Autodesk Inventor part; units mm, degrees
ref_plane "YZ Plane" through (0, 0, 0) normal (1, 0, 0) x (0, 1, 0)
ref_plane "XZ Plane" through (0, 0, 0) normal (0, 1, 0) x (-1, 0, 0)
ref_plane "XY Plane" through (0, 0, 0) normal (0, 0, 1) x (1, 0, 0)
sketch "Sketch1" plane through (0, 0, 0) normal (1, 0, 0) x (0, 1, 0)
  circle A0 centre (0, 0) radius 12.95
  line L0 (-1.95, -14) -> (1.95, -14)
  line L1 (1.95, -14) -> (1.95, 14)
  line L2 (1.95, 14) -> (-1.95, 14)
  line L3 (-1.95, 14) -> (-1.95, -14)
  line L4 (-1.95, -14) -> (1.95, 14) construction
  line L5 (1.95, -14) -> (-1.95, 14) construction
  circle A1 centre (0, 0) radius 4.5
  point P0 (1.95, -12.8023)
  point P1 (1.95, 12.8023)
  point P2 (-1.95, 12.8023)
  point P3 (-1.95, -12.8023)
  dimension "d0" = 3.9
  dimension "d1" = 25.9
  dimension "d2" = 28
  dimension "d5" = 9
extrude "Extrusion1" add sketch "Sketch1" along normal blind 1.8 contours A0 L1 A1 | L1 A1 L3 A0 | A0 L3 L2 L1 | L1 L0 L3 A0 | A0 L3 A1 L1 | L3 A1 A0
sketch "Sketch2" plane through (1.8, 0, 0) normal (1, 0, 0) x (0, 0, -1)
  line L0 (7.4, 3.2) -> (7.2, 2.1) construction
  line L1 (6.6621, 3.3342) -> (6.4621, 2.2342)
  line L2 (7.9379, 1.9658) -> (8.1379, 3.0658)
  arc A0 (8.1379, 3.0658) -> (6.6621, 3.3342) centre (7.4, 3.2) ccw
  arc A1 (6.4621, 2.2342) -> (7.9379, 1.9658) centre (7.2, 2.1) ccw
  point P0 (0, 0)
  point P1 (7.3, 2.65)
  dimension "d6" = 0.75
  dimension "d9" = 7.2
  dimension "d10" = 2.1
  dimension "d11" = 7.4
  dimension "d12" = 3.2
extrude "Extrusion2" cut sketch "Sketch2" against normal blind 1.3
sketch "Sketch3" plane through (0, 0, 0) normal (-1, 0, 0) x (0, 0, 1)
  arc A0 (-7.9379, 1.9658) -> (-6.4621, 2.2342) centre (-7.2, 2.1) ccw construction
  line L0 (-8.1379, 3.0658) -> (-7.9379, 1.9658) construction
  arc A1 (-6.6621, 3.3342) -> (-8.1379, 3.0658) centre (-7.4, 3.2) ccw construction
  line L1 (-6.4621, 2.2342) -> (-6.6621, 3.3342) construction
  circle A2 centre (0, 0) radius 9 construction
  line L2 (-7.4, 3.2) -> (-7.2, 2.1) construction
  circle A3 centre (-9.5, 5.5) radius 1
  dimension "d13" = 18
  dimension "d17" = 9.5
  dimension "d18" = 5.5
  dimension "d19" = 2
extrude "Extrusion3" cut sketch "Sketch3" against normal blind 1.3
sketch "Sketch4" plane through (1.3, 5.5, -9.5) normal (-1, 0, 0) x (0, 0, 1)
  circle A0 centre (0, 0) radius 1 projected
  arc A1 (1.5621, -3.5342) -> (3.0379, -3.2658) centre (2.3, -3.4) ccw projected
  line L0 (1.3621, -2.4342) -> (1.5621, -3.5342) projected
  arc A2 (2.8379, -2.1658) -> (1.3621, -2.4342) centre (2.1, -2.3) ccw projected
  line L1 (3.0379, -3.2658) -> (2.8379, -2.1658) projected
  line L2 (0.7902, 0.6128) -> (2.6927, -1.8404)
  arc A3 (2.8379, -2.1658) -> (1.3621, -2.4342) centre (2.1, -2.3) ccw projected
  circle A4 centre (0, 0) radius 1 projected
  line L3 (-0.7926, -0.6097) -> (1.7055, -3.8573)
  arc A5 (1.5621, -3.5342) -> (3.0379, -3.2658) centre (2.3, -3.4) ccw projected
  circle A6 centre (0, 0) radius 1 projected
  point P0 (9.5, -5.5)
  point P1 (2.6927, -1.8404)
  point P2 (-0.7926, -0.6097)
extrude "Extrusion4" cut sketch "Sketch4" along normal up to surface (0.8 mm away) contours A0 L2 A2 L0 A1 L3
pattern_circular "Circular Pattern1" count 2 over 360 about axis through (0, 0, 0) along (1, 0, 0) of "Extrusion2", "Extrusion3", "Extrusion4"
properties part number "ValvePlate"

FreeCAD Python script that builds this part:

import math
import FreeCAD as App
import Part
import Sketcher
from FreeCAD import Vector
Q = App.Units.Quantity

doc = App.newDocument("Part")
params = doc.addObject("Spreadsheet::Sheet", "Params")
for row, (alias, value) in enumerate([
    ("sketch1_diameter", "9 mm"),
    ("sketch1_radius", "12.95 mm"),
    ("sketch1_width", "3.9 mm"),
    ("pad1_length", "1.8 mm"),
    ("sketch2_radius", "0.75 mm"),
    ("pocket1_length", "1.3 mm"),
    ("sketch3_diameter", "2 mm"),
    ("pocket2_length", "1.3 mm"),
    ("sketch4_radius", "1 mm"),
    ("sketch4_radius2", "0.75 mm"),
    ("pocket3_length", "0.8 mm"),
], start=1):
    params.set(f"A{row}", alias)
    params.set(f"B{row}", "=" + value)
    params.setAlias(f"B{row}", alias)

body = doc.addObject("PartDesign::Body", "Body")

# Sketch on YZ plane
sketch1 = body.newObject("Sketcher::SketchObject", "Sketch")
sketch1.AttachmentSupport = (doc.getObject("YZ_Plane"), [""])
sketch1.MapMode = "FlatFace"
sketch1.addGeometry([
    Part.ArcOfCircle(Part.Circle(Vector(0, 0, 0), Vector(0, 0, 1), 12.95), math.radians(-81.339509), math.radians(81.339509)),  # 0
    Part.LineSegment(Vector(1.95, 12.802344, 0), Vector(1.95, 14, 0)),  # 1
    Part.LineSegment(Vector(1.95, 14, 0), Vector(-1.95, 14, 0)),  # 2
    Part.LineSegment(Vector(-1.95, 14, 0), Vector(-1.95, 12.802344, 0)),  # 3
    Part.ArcOfCircle(Part.Circle(Vector(0, 0, 0), Vector(0, 0, 1), 12.95), math.radians(98.660491), math.radians(261.339509)),  # 4
    Part.LineSegment(Vector(-1.95, -12.802344, 0), Vector(-1.95, -14, 0)),  # 5
    Part.LineSegment(Vector(-1.95, -14, 0), Vector(1.95, -14, 0)),  # 6
    Part.LineSegment(Vector(1.95, -14, 0), Vector(1.95, -12.802344, 0)),  # 7
    Part.Circle(Vector(0, 0, 0), Vector(0, 0, 1), 4.5),  # 8
], False)
sketch1.addConstraint([
    Sketcher.Constraint("Coincident", 0, 2, 1, 1),
    Sketcher.Constraint("Coincident", 1, 2, 2, 1),
    Sketcher.Constraint("Coincident", 2, 2, 3, 1),
    Sketcher.Constraint("Coincident", 3, 2, 4, 1),
    Sketcher.Constraint("Coincident", 4, 2, 5, 1),
    Sketcher.Constraint("Coincident", 5, 2, 6, 1),
    Sketcher.Constraint("Coincident", 6, 2, 7, 1),
    Sketcher.Constraint("Coincident", 7, 2, 0, 1),
    Sketcher.Constraint("Vertical", 1),
    Sketcher.Constraint("Horizontal", 2),
    Sketcher.Constraint("Vertical", 3),
    Sketcher.Constraint("Vertical", 5),
    Sketcher.Constraint("Horizontal", 6),
    Sketcher.Constraint("Vertical", 7),
    Sketcher.Constraint("Coincident", 0, 3, -1, 1),
    Sketcher.Constraint("Coincident", 4, 3, -1, 1),
    Sketcher.Constraint("Coincident", 8, 3, -1, 1),
    Sketcher.Constraint("Equal", 0, 4),
    Sketcher.Constraint("Symmetric", 1, 2, 5, 2, -1, 1),
    Sketcher.Constraint("Horizontal", 0, 2, 3, 2),
    Sketcher.Constraint("Horizontal", 4, 2, 7, 2),
    Sketcher.Constraint("Diameter", 8, Q("9 mm")),
    Sketcher.Constraint("Radius", 0, Q("12.95 mm")),
    Sketcher.Constraint("DistanceX", 2, 2, 2, 1, Q("3.9 mm")),
    Sketcher.Constraint("DistanceY", -1, 1, 1, 2, Q("14 mm")),
])
sketch1.setExpression("Constraints[21]", "Params.sketch1_diameter")
sketch1.setExpression("Constraints[22]", "Params.sketch1_radius")
sketch1.setExpression("Constraints[23]", "Params.sketch1_width")
pad1 = body.newObject("PartDesign::Pad", "Pad")
pad1.Profile = sketch1
pad1.setExpression("Length", "Params.pad1_length")

# Sketch on YZ plane
sketch2 = body.newObject("Sketcher::SketchObject", "Sketch001")
sketch2.AttachmentSupport = (doc.getObject("YZ_Plane"), [""])
sketch2.MapMode = "FlatFace"
sketch2.AttachmentOffset = App.Placement(Vector(0, 0, 1.8), App.Rotation())
sketch2.addGeometry([
    Part.ArcOfCircle(Part.Circle(Vector(3.2, -7.4, 0), Vector(0, 0, 1), 0.750004), math.radians(-100.30758), math.radians(79.69242)),
    Part.LineSegment(Vector(3.3342, -6.6621, 0), Vector(2.2342, -6.4621, 0)),
    Part.ArcOfCircle(Part.Circle(Vector(2.1, -7.2, 0), Vector(0, 0, 1), 0.750004), math.radians(79.69242), math.radians(259.69242)),
    Part.LineSegment(Vector(1.9658, -7.9379, 0), Vector(3.0658, -8.1379, 0)),
], False)
sketch2.addConstraint([
    Sketcher.Constraint("Tangent", 0, 2, 1, 1),
    Sketcher.Constraint("Tangent", 1, 2, 2, 1),
    Sketcher.Constraint("Tangent", 2, 2, 3, 1),
    Sketcher.Constraint("Tangent", 3, 2, 0, 1),
    Sketcher.Constraint("Equal", 0, 2),
    Sketcher.Constraint("Radius", 0, Q("0.75 mm")),
    Sketcher.Constraint("DistanceX", -1, 1, 0, 3, Q("3.2 mm")),
    Sketcher.Constraint("DistanceY", 0, 3, -1, 1, Q("7.4 mm")),
    Sketcher.Constraint("DistanceX", -1, 1, 2, 3, Q("2.1 mm")),
    Sketcher.Constraint("DistanceY", 2, 3, -1, 1, Q("7.2 mm")),
])
sketch2.setExpression("Constraints[5]", "Params.sketch2_radius")
pocket1 = body.newObject("PartDesign::Pocket", "Pocket")
pocket1.Profile = sketch2
pocket1.setExpression("Length", "Params.pocket1_length")

# Sketch on YZ plane
sketch3 = body.newObject("Sketcher::SketchObject", "Sketch002")
sketch3.AttachmentSupport = (doc.getObject("YZ_Plane"), [""])
sketch3.MapMode = "FlatFace"
sketch3.addGeometry(Part.Circle(Vector(5.5, -9.5, 0), Vector(0, 0, 1), 1), False)
sketch3.addConstraint([
    Sketcher.Constraint("Diameter", 0, Q("2 mm")),
    Sketcher.Constraint("DistanceX", -1, 1, 0, 3, Q("5.5 mm")),
    Sketcher.Constraint("DistanceY", 0, 3, -1, 1, Q("9.5 mm")),
])
sketch3.setExpression("Constraints[0]", "Params.sketch3_diameter")
pocket2 = body.newObject("PartDesign::Pocket", "Pocket001")
pocket2.Profile = sketch3
pocket2.setExpression("Length", "Params.pocket2_length")
pocket2.Reversed = True

# Sketch on YZ plane
sketch4 = body.newObject("Sketcher::SketchObject", "Sketch003")
sketch4.AttachmentSupport = (doc.getObject("YZ_Plane"), [""])
sketch4.MapMode = "FlatFace"
sketch4.AttachmentOffset = App.Placement(Vector(0, 0, 1.3), App.Rotation())
sketch4.addGeometry([
    Part.ArcOfCircle(Part.Circle(Vector(5.5, -9.5, 0), Vector(0, 0, 1), 1), math.radians(52.206427), math.radians(232.431059)),  # 0
    Part.LineSegment(Vector(4.8903, -10.2926, 0), Vector(1.6427, -7.7945, 0)),  # 1
    Part.ArcOfCircle(Part.Circle(Vector(2.1, -7.2, 0), Vector(0, 0, 1), 0.750004), math.radians(-127.568126), math.radians(-100.30758)),  # 2
    Part.LineSegment(Vector(1.9658, -7.9379, 0), Vector(3.0658, -8.1379, 0)),  # 3
    Part.ArcOfCircle(Part.Circle(Vector(3.2, -7.4, 0), Vector(0, 0, 1), 0.750004), math.radians(-100.30758), math.radians(52.208767)),  # 4
    Part.LineSegment(Vector(3.6596, -6.8073, 0), Vector(6.1128, -8.7098, 0)),  # 5
], False)
sketch4.addConstraint([
    Sketcher.Constraint("Tangent", 0, 2, 1, 1),
    Sketcher.Constraint("Tangent", 1, 2, 2, 1),
    Sketcher.Constraint("Tangent", 2, 2, 3, 1),
    Sketcher.Constraint("Tangent", 3, 2, 4, 1),
    Sketcher.Constraint("Tangent", 4, 2, 5, 1),
    Sketcher.Constraint("Tangent", 5, 2, 0, 1),
    Sketcher.Constraint("Equal", 2, 4),
    Sketcher.Constraint("Radius", 0, Q("1 mm")),
    Sketcher.Constraint("Radius", 2, Q("0.75 mm")),
    Sketcher.Constraint("DistanceX", -1, 1, 0, 3, Q("5.5 mm")),
    Sketcher.Constraint("DistanceY", 0, 3, -1, 1, Q("9.5 mm")),
    Sketcher.Constraint("DistanceX", -1, 1, 2, 3, Q("2.1 mm")),
    Sketcher.Constraint("DistanceY", 2, 3, -1, 1, Q("7.2 mm")),
    Sketcher.Constraint("DistanceX", -1, 1, 4, 3, Q("3.2 mm")),
    Sketcher.Constraint("DistanceY", 4, 3, -1, 1, Q("7.4 mm")),
])
sketch4.setExpression("Constraints[7]", "Params.sketch4_radius")
sketch4.setExpression("Constraints[8]", "Params.sketch4_radius2")
pocket3 = body.newObject("PartDesign::Pocket", "Pocket002")
pocket3.Profile = sketch4
pocket3.setExpression("Length", "Params.pocket3_length")
doc.recompute()

polarpattern = body.newObject("PartDesign::PolarPattern", "PolarPattern")
polarpattern.Originals = [pocket1, pocket2, pocket3]
polarpattern.Axis = (doc.getObject("X_Axis"), [""])
polarpattern.Angle = 360
polarpattern.Occurrences = 2
body.Tip = polarpattern

doc.recompute()
